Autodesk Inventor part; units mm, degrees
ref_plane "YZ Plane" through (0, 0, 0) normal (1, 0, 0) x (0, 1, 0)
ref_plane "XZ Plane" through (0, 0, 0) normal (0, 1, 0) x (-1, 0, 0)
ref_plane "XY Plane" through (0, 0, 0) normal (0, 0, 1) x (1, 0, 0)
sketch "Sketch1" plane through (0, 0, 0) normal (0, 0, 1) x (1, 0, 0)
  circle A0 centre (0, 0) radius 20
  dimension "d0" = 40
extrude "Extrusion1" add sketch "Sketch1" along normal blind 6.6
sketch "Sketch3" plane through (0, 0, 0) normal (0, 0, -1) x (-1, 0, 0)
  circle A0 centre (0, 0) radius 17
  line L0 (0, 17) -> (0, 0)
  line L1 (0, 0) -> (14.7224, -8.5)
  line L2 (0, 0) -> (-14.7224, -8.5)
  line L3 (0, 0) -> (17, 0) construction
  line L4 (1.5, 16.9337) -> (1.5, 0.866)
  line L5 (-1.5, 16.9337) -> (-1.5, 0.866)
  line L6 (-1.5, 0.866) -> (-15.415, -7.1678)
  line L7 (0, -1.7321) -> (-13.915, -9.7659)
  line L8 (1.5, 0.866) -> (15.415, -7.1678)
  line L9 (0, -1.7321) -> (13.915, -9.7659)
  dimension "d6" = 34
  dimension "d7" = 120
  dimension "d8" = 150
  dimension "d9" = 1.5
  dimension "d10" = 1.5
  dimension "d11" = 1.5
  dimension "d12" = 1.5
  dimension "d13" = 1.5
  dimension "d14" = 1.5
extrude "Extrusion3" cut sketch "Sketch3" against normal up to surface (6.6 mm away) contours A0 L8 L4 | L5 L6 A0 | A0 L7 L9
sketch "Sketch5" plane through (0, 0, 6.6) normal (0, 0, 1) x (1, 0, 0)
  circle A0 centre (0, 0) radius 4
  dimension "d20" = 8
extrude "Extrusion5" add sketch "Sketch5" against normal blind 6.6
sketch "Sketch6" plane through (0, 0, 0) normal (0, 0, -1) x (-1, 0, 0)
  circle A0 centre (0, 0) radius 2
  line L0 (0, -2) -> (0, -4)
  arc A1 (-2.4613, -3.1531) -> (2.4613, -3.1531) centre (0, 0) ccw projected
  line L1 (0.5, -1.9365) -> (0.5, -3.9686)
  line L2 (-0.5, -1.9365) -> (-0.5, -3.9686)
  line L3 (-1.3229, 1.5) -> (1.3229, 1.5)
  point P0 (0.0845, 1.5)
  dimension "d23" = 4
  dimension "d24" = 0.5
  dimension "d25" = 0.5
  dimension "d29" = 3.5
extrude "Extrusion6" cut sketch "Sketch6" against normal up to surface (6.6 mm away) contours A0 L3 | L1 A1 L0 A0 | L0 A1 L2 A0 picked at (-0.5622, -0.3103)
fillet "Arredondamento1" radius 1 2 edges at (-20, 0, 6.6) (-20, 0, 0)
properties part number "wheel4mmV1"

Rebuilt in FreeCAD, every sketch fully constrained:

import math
import FreeCAD as App
import Part
import Sketcher
Q = App.Units.Quantity


def edges_at(feature, points):
    """Names of the edges that pass closest to the given points."""
    edges = feature.Shape.Edges
    near = lambda p: min(range(len(edges)), key=lambda i: edges[i].distToShape(Part.Vertex(*p))[0])
    return sorted({f"Edge{near(p) + 1}" for p in points})

doc = App.newDocument("Part")
body = doc.addObject("PartDesign::Body", "Body")

# Sketch on XY plane
sketch1 = body.newObject("Sketcher::SketchObject", "Sketch")
sketch1.AttachmentSupport = (doc.getObject("XY_Plane"), [""])
sketch1.MapMode = "FlatFace"
sketch1.addGeometry(Part.Circle(App.Vector(0, 0, 0), App.Vector(0, 0, 1), 20), False)
sketch1.addConstraint(Sketcher.Constraint("Coincident", 0, 3, -1, 1))
sketch1.addConstraint(Sketcher.Constraint("Diameter", 0, Q("40 mm")))
pad1 = body.newObject("PartDesign::Pad", "Pad")
pad1.Profile = sketch1
pad1.Length = 6.6

# Sketch on XY plane
sketch2 = body.newObject("Sketcher::SketchObject", "Sketch001")
sketch2.AttachmentSupport = (doc.getObject("XY_Plane"), [""])
sketch2.MapMode = "FlatFace"
sketch2.addGeometry(Part.ArcOfCircle(Part.Circle(App.Vector(0, 0, 0), App.Vector(0, 0, 1), 17), math.radians(95), math.radians(205)), False)
sketch2.addGeometry(Part.LineSegment(App.Vector(-2, 17, 0), App.Vector(-2, 1, 0)), False)
sketch2.addGeometry(Part.LineSegment(App.Vector(-2, 1, 0), App.Vector(-15, -7, 0)), False)
sketch2.addGeometry(Part.LineSegment(App.Vector(2, 1, 0), App.Vector(2, 17, 0)), False)
sketch2.addGeometry(Part.ArcOfCircle(Part.Circle(App.Vector(0, 0, 0), App.Vector(0, 0, 1), 17), math.radians(-25), math.radians(85)), False)
sketch2.addGeometry(Part.LineSegment(App.Vector(15, -7, 0), App.Vector(2, 1, 0)), False)
sketch2.addGeometry(Part.ArcOfCircle(Part.Circle(App.Vector(0, 0, 0), App.Vector(0, 0, 1), 17), math.radians(-145), math.radians(-35)), False)
sketch2.addGeometry(Part.LineSegment(App.Vector(-14, -10, 0), App.Vector(0, -2, 0)), False)
sketch2.addGeometry(Part.LineSegment(App.Vector(0, -2, 0), App.Vector(14, -10, 0)), False)
sketch2.addConstraint(Sketcher.Constraint("Coincident", 0, 1, 1, 1))
sketch2.addConstraint(Sketcher.Constraint("Coincident", 1, 2, 2, 1))
sketch2.addConstraint(Sketcher.Constraint("Coincident", 2, 2, 0, 2))
sketch2.addConstraint(Sketcher.Constraint("Coincident", 3, 2, 4, 2))
sketch2.addConstraint(Sketcher.Constraint("Coincident", 4, 1, 5, 1))
sketch2.addConstraint(Sketcher.Constraint("Coincident", 5, 2, 3, 1))
sketch2.addConstraint(Sketcher.Constraint("Coincident", 6, 1, 7, 1))
sketch2.addConstraint(Sketcher.Constraint("Coincident", 7, 2, 8, 1))
sketch2.addConstraint(Sketcher.Constraint("Coincident", 8, 2, 6, 2))
sketch2.addConstraint(Sketcher.Constraint("Vertical", 1))
sketch2.addConstraint(Sketcher.Constraint("Vertical", 3))
sketch2.addConstraint(Sketcher.Constraint("Coincident", 0, 3, -1, 1))
sketch2.addConstraint(Sketcher.Constraint("Coincident", 4, 3, -1, 1))
sketch2.addConstraint(Sketcher.Constraint("Coincident", 6, 3, -1, 1))
sketch2.addConstraint(Sketcher.Constraint("Equal", 0, 4))
sketch2.addConstraint(Sketcher.Constraint("Equal", 4, 6))
sketch2.addConstraint(Sketcher.Constraint("Symmetric", 1, 2, 5, 2, -2))
sketch2.addConstraint(Sketcher.Constraint("PointOnObject", 7, 2, -2))
sketch2.addConstraint(Sketcher.Constraint("Parallel", 2, 7))
sketch2.addConstraint(Sketcher.Constraint("Parallel", 5, 8))
sketch2.addConstraint(Sketcher.Constraint("Horizontal", 2, 2, 4, 1))
sketch2.addConstraint(Sketcher.Constraint("Equal", 5, 7))
sketch2.addConstraint(Sketcher.Constraint("Radius", 0, Q("17 mm")))
sketch2.addConstraint(Sketcher.Constraint("Angle", 2, Q("-150 deg")))
sketch2.addConstraint(Sketcher.Constraint("DistanceX", 0, 1, -1, 1, Q("1.5 mm")))
sketch2.addConstraint(Sketcher.Constraint("DistanceY", 1, 2, 1, 1, Q("16.0677 mm")))
pocket1 = body.newObject("PartDesign::Pocket", "Pocket")
pocket1.Profile = sketch2
pocket1.Length = 6.6
pocket1.Reversed = True

# Sketch on XY plane
sketch3 = body.newObject("Sketcher::SketchObject", "Sketch002")
sketch3.AttachmentSupport = (doc.getObject("XY_Plane"), [""])
sketch3.MapMode = "FlatFace"
sketch3.AttachmentOffset = App.Placement(App.Vector(0, 0, 6.6), App.Rotation())
sketch3.addGeometry(Part.Circle(App.Vector(0, 0, 0), App.Vector(0, 0, 1), 4), False)
sketch3.addConstraint(Sketcher.Constraint("Coincident", 0, 3, -1, 1))
sketch3.addConstraint(Sketcher.Constraint("Diameter", 0, Q("8 mm")))
pad2 = body.newObject("PartDesign::Pad", "Pad001")
pad2.Profile = sketch3
pad2.Length = 6.6
pad2.Reversed = True

# Sketch on XY plane
sketch4 = body.newObject("Sketcher::SketchObject", "Sketch003")
sketch4.AttachmentSupport = (doc.getObject("XY_Plane"), [""])
sketch4.MapMode = "FlatFace"
sketch4.addGeometry(Part.ArcOfCircle(Part.Circle(App.Vector(0, 0, 0), App.Vector(0, 0, 1), 2), math.radians(131), math.radians(256)), False)
sketch4.addGeometry(Part.LineSegment(App.Vector(-1.3, 1.5, 0), App.Vector(1.3, 1.5, 0)), False)
sketch4.addGeometry(Part.ArcOfCircle(Part.Circle(App.Vector(0, 0, 0), App.Vector(0, 0, 1), 2), math.radians(-76), math.radians(49)), False)
sketch4.addGeometry(Part.LineSegment(App.Vector(0.5, -1.9, 0), App.Vector(0.5, -4, 0)), False)
sketch4.addGeometry(Part.ArcOfCircle(Part.Circle(App.Vector(0, 0, 0), App.Vector(0, 0, 1), 4), math.radians(-97.18), math.radians(-82.82)), False)
sketch4.addGeometry(Part.LineSegment(App.Vector(-0.5, -4, 0), App.Vector(-0.5, -1.9, 0)), False)
sketch4.addConstraint(Sketcher.Constraint("Coincident", 0, 1, 1, 1))
sketch4.addConstraint(Sketcher.Constraint("Coincident", 1, 2, 2, 2))
sketch4.addConstraint(Sketcher.Constraint("Coincident", 2, 1, 3, 1))
sketch4.addConstraint(Sketcher.Constraint("Coincident", 3, 2, 4, 2))
sketch4.addConstraint(Sketcher.Constraint("Coincident", 4, 1, 5, 1))
sketch4.addConstraint(Sketcher.Constraint("Coincident", 5, 2, 0, 2))
sketch4.addConstraint(Sketcher.Constraint("Horizontal", 1))
sketch4.addConstraint(Sketcher.Constraint("Vertical", 3))
sketch4.addConstraint(Sketcher.Constraint("Vertical", 5))
sketch4.addConstraint(Sketcher.Constraint("Coincident", 0, 3, -1, 1))
sketch4.addConstraint(Sketcher.Constraint("Coincident", 2, 3, -1, 1))
sketch4.addConstraint(Sketcher.Constraint("Coincident", 4, 3, -1, 1))
sketch4.addConstraint(Sketcher.Constraint("Equal", 0, 2))
sketch4.addConstraint(Sketcher.Constraint("Horizontal", 3, 2, 4, 1))
sketch4.addConstraint(Sketcher.Constraint("Radius", 0, Q("2 mm")))
sketch4.addConstraint(Sketcher.Constraint("Radius", 4, Q("4 mm")))
sketch4.addConstraint(Sketcher.Constraint("DistanceX", -1, 1, 2, 1, Q("0.5 mm")))
sketch4.addConstraint(Sketcher.Constraint("DistanceY", -1, 1, 0, 1, Q("1.5 mm")))
pocket2 = body.newObject("PartDesign::Pocket", "Pocket001")
pocket2.Profile = sketch4
pocket2.Length = 6.6
pocket2.Reversed = True
doc.recompute()

fillet = body.newObject("PartDesign::Fillet", "Fillet")
fillet.Base = (pocket2, edges_at(pocket2, [(-20, 0, 6.6), (-20, 0, 0)]))
fillet.Radius = 1

doc.recompute()
